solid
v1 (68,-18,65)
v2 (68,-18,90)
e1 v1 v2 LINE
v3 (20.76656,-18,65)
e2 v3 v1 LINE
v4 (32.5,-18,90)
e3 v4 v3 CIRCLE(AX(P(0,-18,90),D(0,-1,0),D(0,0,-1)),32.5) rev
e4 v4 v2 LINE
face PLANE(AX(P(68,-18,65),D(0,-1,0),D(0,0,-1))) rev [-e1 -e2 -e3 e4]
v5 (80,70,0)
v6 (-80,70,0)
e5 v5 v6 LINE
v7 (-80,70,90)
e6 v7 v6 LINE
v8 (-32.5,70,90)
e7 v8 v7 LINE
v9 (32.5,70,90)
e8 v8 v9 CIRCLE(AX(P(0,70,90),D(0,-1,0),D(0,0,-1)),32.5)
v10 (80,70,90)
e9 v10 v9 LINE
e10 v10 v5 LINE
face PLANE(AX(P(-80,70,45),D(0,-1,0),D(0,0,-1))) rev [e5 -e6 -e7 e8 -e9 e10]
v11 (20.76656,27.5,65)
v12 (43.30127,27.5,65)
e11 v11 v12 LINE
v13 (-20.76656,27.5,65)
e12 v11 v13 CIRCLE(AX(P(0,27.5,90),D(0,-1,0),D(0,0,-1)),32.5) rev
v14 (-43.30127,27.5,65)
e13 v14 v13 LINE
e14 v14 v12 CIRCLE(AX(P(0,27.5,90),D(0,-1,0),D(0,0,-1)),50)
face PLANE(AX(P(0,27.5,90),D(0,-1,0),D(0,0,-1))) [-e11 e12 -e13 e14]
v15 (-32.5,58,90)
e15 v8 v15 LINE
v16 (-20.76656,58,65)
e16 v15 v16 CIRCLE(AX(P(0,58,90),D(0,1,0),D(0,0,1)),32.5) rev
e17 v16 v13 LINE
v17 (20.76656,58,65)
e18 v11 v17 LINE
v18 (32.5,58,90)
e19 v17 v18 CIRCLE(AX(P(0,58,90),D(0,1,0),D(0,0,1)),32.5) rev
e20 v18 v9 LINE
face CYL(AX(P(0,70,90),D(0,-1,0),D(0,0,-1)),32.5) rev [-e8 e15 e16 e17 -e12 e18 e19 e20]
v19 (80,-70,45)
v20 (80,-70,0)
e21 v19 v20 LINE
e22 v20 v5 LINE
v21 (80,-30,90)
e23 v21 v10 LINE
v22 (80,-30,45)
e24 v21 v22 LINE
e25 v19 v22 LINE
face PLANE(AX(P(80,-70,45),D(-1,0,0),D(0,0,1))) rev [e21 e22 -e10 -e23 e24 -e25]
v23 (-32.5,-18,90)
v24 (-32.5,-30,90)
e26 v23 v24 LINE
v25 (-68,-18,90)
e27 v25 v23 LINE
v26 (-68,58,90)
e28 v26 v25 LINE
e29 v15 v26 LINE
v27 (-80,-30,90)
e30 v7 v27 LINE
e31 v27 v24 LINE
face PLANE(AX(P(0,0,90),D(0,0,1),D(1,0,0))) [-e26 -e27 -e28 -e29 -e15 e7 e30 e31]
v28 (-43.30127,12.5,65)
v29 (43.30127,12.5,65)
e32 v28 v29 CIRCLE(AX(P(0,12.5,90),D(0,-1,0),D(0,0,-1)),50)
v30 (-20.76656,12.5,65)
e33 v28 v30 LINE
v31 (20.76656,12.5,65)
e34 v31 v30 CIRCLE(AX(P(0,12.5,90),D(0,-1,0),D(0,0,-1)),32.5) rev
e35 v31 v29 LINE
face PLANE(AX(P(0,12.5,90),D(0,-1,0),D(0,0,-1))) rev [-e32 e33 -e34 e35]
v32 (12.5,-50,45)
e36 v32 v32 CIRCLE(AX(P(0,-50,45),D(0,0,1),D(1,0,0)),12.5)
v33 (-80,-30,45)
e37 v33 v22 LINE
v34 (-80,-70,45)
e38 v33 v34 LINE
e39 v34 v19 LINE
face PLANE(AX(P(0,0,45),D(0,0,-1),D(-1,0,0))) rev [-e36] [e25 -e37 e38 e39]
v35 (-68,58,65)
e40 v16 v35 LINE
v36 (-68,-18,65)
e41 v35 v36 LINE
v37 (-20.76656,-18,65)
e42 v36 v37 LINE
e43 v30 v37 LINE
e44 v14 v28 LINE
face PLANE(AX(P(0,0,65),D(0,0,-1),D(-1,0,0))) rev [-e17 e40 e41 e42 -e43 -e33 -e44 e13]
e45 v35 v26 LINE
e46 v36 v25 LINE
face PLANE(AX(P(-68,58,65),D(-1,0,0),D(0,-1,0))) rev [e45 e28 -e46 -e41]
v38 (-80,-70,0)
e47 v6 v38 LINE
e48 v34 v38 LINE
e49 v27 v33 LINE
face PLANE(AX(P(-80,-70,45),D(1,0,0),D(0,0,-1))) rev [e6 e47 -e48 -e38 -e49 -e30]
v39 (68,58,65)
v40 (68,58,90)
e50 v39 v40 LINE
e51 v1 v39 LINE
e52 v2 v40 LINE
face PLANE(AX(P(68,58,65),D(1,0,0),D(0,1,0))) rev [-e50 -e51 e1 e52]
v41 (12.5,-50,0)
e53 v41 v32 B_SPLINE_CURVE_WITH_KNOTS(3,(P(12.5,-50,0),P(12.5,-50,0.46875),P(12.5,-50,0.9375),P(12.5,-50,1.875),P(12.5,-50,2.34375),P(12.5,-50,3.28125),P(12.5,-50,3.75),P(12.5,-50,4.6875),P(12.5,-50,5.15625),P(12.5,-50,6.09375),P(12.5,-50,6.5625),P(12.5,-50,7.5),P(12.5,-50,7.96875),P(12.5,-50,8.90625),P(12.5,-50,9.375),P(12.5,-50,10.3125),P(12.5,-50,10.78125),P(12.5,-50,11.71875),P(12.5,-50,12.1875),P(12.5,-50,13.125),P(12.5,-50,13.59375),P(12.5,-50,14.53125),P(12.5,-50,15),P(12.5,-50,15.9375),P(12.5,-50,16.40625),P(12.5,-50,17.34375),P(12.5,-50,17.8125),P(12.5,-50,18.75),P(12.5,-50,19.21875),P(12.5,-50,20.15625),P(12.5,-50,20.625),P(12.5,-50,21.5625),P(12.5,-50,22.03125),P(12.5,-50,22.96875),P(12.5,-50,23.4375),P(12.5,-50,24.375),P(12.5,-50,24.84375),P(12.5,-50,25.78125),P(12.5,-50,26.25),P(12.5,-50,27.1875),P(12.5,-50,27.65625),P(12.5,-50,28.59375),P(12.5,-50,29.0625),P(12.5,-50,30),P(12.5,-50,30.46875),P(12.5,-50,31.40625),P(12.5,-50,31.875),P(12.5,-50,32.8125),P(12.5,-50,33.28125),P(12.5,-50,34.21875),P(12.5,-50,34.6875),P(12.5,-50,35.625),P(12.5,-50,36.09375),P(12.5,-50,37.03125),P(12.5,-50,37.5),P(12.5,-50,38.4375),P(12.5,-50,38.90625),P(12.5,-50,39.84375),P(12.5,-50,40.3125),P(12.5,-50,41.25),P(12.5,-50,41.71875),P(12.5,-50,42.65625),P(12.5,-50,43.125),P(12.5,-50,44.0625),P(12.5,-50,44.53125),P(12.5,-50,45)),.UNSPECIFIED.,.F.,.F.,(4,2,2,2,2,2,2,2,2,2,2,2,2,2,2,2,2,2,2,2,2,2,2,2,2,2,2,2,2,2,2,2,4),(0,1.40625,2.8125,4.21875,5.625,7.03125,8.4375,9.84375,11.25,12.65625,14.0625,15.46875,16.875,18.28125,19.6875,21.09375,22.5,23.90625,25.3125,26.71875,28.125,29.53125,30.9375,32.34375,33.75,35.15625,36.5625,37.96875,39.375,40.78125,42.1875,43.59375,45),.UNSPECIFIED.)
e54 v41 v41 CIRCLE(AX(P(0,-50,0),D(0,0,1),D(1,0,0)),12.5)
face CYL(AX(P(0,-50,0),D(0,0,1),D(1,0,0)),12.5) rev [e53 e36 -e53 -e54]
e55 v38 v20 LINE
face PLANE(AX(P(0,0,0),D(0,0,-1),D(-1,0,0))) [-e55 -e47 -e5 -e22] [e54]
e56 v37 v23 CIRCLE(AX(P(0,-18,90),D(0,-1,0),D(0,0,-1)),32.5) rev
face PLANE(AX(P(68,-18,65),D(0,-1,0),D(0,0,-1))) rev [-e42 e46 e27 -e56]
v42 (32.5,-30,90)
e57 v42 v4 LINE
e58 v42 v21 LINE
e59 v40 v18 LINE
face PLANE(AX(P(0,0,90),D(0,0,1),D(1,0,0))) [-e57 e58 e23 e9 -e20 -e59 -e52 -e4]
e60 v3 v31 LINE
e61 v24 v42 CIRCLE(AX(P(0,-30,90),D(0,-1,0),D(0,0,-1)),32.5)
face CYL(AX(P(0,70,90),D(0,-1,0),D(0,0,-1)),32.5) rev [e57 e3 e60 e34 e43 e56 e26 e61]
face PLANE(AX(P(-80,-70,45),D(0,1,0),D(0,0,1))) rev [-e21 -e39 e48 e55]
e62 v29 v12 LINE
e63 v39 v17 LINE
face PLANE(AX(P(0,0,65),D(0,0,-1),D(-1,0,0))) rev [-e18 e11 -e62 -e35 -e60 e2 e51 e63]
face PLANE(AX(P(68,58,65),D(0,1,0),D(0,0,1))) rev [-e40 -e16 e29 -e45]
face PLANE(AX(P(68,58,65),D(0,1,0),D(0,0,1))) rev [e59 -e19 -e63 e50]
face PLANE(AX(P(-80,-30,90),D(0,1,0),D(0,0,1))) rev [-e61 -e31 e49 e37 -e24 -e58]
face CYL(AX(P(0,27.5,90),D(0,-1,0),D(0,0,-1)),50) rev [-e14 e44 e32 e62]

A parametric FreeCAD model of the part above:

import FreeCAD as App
import Part
import Sketcher
Q = App.Units.Quantity


def add_polygon(sketch, points):
    """Adds a closed chain of lines whose ends are joined by coincident constraints."""
    first, n = sketch.GeometryCount, len(points)
    for a, b in zip(points, points[1:] + points[:1]):
        sketch.addGeometry(Part.LineSegment(App.Vector(*a, 0), App.Vector(*b, 0)), False)
    for i in range(n):
        sketch.addConstraint(Sketcher.Constraint("Coincident", first + i, 2, first + (i + 1) % n, 1))

doc = App.newDocument("Part")
params = doc.addObject("Spreadsheet::Sheet", "Params")
for row, (alias, value) in enumerate([
    ("sketch1_width", "160 mm"),
    ("sketch1_height", "140 mm"),
    ("pad1_length", "45 mm"),
    ("sketch2_width", "160 mm"),
    ("sketch2_height", "100 mm"),
    ("pad2_length", "45 mm"),
    ("sketch3_diameter", "25 mm"),
    ("sketch4_diameter", "65 mm"),
    ("sketch5_diameter", "100 mm"),
    ("pocket3_length", "15 mm"),
    ("sketch6_width", "136 mm"),
    ("sketch6_height", "76 mm"),
    ("pocket4_length", "25 mm"),
], start=1):
    params.set(f"A{row}", alias)
    params.set(f"B{row}", "=" + value)
    params.setAlias(f"B{row}", alias)

body = doc.addObject("PartDesign::Body", "Body")

sketch1 = body.newObject("Sketcher::SketchObject", "Sketch")
sketch1.AttachmentSupport = (doc.getObject("XY_Plane"), [""])
sketch1.MapMode = "FlatFace"
add_polygon(sketch1, [(-80, 70), (-80, -70), (80, -70), (80, 70)])
sketch1.addConstraint([
    Sketcher.Constraint("Vertical", 0),
    Sketcher.Constraint("Horizontal", 1),
    Sketcher.Constraint("Vertical", 2),
    Sketcher.Constraint("Horizontal", 3),
    Sketcher.Constraint("Symmetric", 0, 2, 2, 2, -1, 1),
    Sketcher.Constraint("DistanceX", 1, 1, 1, 2, Q("160 mm")),
    Sketcher.Constraint("DistanceY", 0, 2, 0, 1, Q("140 mm")),
])
sketch1.setExpression("Constraints[9]", "Params.sketch1_width")
sketch1.setExpression("Constraints[10]", "Params.sketch1_height")
pad1 = body.newObject("PartDesign::Pad", "Pad")
pad1.Profile = sketch1
pad1.setExpression("Length", "Params.pad1_length")

sketch2 = body.newObject("Sketcher::SketchObject", "Sketch001")
sketch2.AttachmentSupport = (doc.getObject("XY_Plane"), [""])
sketch2.MapMode = "FlatFace"
sketch2.AttachmentOffset = App.Placement(App.Vector(0, 0, 45), App.Rotation())
add_polygon(sketch2, [(-80, 70), (-80, -30), (80, -30), (80, 70)])
sketch2.addConstraint([
    Sketcher.Constraint("Vertical", 0),
    Sketcher.Constraint("Horizontal", 1),
    Sketcher.Constraint("Vertical", 2),
    Sketcher.Constraint("Horizontal", 3),
    Sketcher.Constraint("DistanceX", 1, 1, 1, 2, Q("160 mm")),
    Sketcher.Constraint("DistanceY", 0, 2, 0, 1, Q("100 mm")),
    Sketcher.Constraint("DistanceX", 0, 2, -1, 1, Q("80 mm")),
    Sketcher.Constraint("DistanceY", 0, 2, -1, 1, Q("30 mm")),
])
sketch2.setExpression("Constraints[8]", "Params.sketch2_width")
sketch2.setExpression("Constraints[9]", "Params.sketch2_height")
pad2 = body.newObject("PartDesign::Pad", "Pad001")
pad2.Profile = sketch2
pad2.setExpression("Length", "Params.pad2_length")

sketch3 = body.newObject("Sketcher::SketchObject", "Sketch002")
sketch3.AttachmentSupport = (doc.getObject("XY_Plane"), [""])
sketch3.MapMode = "FlatFace"
sketch3.AttachmentOffset = App.Placement(App.Vector(0, 0, 45), App.Rotation())
sketch3.addGeometry(Part.Circle(App.Vector(0, -50, 0), App.Vector(0, 0, 1), 12), False)
sketch3.addConstraint([
    Sketcher.Constraint("PointOnObject", 0, 3, -2),
    Sketcher.Constraint("Diameter", 0, Q("25 mm")),
    Sketcher.Constraint("DistanceY", 0, 3, -1, 1, Q("50 mm")),
])
sketch3.setExpression("Constraints[1]", "Params.sketch3_diameter")
pocket1 = body.newObject("PartDesign::Pocket", "Pocket")
pocket1.Profile = sketch3
pocket1.Type = "ThroughAll"

sketch4 = body.newObject("Sketcher::SketchObject", "Sketch003")
sketch4.AttachmentSupport = (doc.getObject("XZ_Plane"), [""])
sketch4.MapMode = "FlatFace"
sketch4.AttachmentOffset = App.Placement(App.Vector(0, 0, 30), App.Rotation())
sketch4.addGeometry(Part.Circle(App.Vector(0, 90, 0), App.Vector(0, 0, 1), 32), False)
sketch4.addConstraint([
    Sketcher.Constraint("PointOnObject", 0, 3, -2),
    Sketcher.Constraint("Diameter", 0, Q("65 mm")),
    Sketcher.Constraint("DistanceY", -1, 1, 0, 3, Q("90 mm")),
])
sketch4.setExpression("Constraints[1]", "Params.sketch4_diameter")
pocket2 = body.newObject("PartDesign::Pocket", "Pocket001")
pocket2.Profile = sketch4
pocket2.Type = "ThroughAll"

sketch5 = body.newObject("Sketcher::SketchObject", "Sketch004")
sketch5.AttachmentSupport = (doc.getObject("XZ_Plane"), [""])
sketch5.MapMode = "FlatFace"
sketch5.AttachmentOffset = App.Placement(App.Vector(0, 0, -20), App.Rotation())
sketch5.addGeometry(Part.Circle(App.Vector(0, 90, 0), App.Vector(0, 0, 1), 50), False)
sketch5.addConstraint([
    Sketcher.Constraint("PointOnObject", 0, 3, -2),
    Sketcher.Constraint("Diameter", 0, Q("100 mm")),
    Sketcher.Constraint("DistanceY", -1, 1, 0, 3, Q("90 mm")),
])
sketch5.setExpression("Constraints[1]", "Params.sketch5_diameter")
pocket3 = body.newObject("PartDesign::Pocket", "Pocket002")
pocket3.Profile = sketch5
pocket3.setExpression("Length", "Params.pocket3_length")
pocket3.Midplane = True

sketch6 = body.newObject("Sketcher::SketchObject", "Sketch005")
sketch6.AttachmentSupport = (doc.getObject("XY_Plane"), [""])
sketch6.MapMode = "FlatFace"
sketch6.AttachmentOffset = App.Placement(App.Vector(0, 0, 90), App.Rotation())
add_polygon(sketch6, [(-68, 58), (-68, -18), (68, -18), (68, 58)])
sketch6.addConstraint([
    Sketcher.Constraint("Vertical", 0),
    Sketcher.Constraint("Horizontal", 1),
    Sketcher.Constraint("Vertical", 2),
    Sketcher.Constraint("Horizontal", 3),
    Sketcher.Constraint("DistanceX", 1, 1, 1, 2, Q("136 mm")),
    Sketcher.Constraint("DistanceY", 0, 2, 0, 1, Q("76 mm")),
    Sketcher.Constraint("DistanceX", 0, 2, -1, 1, Q("68 mm")),
    Sketcher.Constraint("DistanceY", 0, 2, -1, 1, Q("18 mm")),
])
sketch6.setExpression("Constraints[8]", "Params.sketch6_width")
sketch6.setExpression("Constraints[9]", "Params.sketch6_height")
pocket4 = body.newObject("PartDesign::Pocket", "Pocket003")
pocket4.Profile = sketch6
pocket4.setExpression("Length", "Params.pocket4_length")

doc.recompute()
